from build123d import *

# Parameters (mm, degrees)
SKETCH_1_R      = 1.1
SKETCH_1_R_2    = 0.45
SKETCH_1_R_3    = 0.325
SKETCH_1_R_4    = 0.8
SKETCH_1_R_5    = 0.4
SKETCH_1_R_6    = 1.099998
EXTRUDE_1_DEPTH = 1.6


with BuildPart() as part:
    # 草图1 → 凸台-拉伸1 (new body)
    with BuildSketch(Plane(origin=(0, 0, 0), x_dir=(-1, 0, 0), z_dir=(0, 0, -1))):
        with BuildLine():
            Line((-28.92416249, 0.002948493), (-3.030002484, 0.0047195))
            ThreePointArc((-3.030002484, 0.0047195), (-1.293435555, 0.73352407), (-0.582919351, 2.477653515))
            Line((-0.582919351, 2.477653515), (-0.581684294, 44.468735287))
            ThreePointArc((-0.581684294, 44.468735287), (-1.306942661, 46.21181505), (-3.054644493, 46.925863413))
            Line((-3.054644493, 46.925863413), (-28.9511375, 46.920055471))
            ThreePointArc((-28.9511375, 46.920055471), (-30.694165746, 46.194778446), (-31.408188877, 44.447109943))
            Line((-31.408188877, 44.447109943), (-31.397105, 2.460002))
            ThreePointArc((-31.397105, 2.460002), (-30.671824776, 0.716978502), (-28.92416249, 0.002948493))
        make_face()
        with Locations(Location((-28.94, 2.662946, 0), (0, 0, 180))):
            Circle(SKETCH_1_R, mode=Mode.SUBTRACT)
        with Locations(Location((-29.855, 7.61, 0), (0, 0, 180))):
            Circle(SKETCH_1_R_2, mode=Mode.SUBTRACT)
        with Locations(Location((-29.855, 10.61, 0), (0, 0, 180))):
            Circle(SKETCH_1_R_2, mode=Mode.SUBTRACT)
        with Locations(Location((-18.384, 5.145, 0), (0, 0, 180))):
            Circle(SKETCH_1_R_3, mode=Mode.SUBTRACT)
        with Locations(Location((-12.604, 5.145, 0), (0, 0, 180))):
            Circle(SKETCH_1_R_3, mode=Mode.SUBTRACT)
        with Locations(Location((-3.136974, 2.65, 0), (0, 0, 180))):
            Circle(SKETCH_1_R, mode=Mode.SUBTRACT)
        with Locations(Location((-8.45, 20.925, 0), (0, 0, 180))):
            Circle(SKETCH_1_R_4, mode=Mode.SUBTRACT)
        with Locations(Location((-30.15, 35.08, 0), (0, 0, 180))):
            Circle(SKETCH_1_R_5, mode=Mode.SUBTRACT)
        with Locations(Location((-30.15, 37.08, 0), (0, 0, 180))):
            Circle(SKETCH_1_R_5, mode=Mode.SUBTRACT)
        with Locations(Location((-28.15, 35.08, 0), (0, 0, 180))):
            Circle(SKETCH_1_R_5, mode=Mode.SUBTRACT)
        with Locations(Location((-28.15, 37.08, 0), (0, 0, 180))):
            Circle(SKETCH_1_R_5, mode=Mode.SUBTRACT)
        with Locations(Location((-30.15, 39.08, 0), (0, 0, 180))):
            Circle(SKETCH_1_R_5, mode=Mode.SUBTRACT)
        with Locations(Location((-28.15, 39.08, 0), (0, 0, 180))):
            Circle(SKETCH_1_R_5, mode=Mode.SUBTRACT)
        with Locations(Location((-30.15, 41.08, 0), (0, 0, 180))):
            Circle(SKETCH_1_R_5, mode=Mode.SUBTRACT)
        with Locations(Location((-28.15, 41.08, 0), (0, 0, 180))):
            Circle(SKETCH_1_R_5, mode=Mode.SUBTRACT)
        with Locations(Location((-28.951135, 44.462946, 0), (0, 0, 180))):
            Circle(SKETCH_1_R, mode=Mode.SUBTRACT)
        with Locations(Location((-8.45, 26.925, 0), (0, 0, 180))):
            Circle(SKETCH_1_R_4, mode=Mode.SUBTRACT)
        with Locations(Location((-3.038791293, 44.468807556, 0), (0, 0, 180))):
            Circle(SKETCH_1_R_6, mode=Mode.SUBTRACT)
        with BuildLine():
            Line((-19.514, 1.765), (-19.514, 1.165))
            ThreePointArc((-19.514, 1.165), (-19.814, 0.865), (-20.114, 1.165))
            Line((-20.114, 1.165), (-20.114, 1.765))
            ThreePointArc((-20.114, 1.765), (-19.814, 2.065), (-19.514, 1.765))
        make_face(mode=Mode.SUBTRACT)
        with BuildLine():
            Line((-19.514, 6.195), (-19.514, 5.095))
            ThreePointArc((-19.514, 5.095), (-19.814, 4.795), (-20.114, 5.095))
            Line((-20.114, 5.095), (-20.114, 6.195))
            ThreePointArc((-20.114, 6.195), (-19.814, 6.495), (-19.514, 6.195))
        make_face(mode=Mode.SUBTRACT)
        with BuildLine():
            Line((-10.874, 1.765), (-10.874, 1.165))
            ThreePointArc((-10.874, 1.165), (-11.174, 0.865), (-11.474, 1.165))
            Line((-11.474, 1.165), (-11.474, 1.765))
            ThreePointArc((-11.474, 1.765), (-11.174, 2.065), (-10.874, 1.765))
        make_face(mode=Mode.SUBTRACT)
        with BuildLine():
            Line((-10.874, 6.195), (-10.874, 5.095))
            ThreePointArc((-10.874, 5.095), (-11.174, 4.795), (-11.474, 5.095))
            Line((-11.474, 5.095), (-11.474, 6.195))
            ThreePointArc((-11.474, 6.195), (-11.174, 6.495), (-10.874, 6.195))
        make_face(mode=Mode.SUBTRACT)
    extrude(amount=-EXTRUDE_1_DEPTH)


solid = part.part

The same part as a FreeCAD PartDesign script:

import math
import FreeCAD as App
import Part
import Sketcher

V = App.Vector
Q = App.Units.Quantity

doc = App.newDocument("Part")
body = doc.addObject("PartDesign::Body", "Body")

# Sketch on XY plane
sketch1 = doc.addObject("Sketcher::SketchObject", "Sketch")
body.addObject(sketch1)
sketch1.AttachmentSupport = (doc.XY_Plane, [""])
sketch1.MapMode = "FlatFace"
sketch1.addGeometry([
    Part.LineSegment(V(28.924162, 0.002948, 0), V(3.030002, 0.004719, 0)),  # 0
    Part.ArcOfCircle(Part.Circle(V(3.039982, 2.461813, 0), V(0, 0, 1), 2.457114), math.radians(179.630632), math.radians(269.767284)),  # 1
    Part.LineSegment(V(0.582919, 2.477654, 0), V(0.581684, 44.468735, 0)),  # 2
    Part.ArcOfCircle(Part.Circle(V(3.038791, 44.468808, 0), V(0, 0, 1), 2.457107), math.radians(89.630326), math.radians(180.001685)),  # 3
    Part.LineSegment(V(3.054644, 46.925863, 0), V(28.951138, 46.920055, 0)),  # 4
    Part.ArcOfCircle(Part.Circle(V(28.951144, 44.46296, 0), V(0, 0, 1), 2.457095), math.radians(-0.369601), math.radians(90.000163)),  # 5
    Part.LineSegment(V(31.408189, 44.44711, 0), V(31.397105, 2.460002, 0)),  # 6
    Part.ArcOfCircle(Part.Circle(V(28.939992, 2.46001, 0), V(0, 0, 1), 2.457113), math.radians(-90.369132), math.radians(-0.000187)),  # 7
    Part.Circle(V(28.94, 2.662946, 0), V(0, 0, 1), 1.1),  # 8
    Part.Circle(V(29.855, 7.61, 0), V(0, 0, 1), 0.45),  # 9
    Part.Circle(V(29.855, 10.61, 0), V(0, 0, 1), 0.45),  # 10
    Part.ArcOfCircle(Part.Circle(V(19.814, 1.765, 0), V(0, 0, 1), 0.3), math.radians(0), math.radians(180)),  # 11
    Part.LineSegment(V(19.514, 1.765, 0), V(19.514, 1.165, 0)),  # 12
    Part.ArcOfCircle(Part.Circle(V(19.814, 1.165, 0), V(0, 0, 1), 0.3), math.radians(180), math.radians(360)),  # 13
    Part.LineSegment(V(20.114, 1.165, 0), V(20.114, 1.765, 0)),  # 14
    Part.ArcOfCircle(Part.Circle(V(19.814, 6.195, 0), V(0, 0, 1), 0.3), math.radians(0), math.radians(180)),  # 15
    Part.LineSegment(V(19.514, 6.195, 0), V(19.514, 5.095, 0)),  # 16
    Part.ArcOfCircle(Part.Circle(V(19.814, 5.095, 0), V(0, 0, 1), 0.3), math.radians(180), math.radians(360)),  # 17
    Part.LineSegment(V(20.114, 5.095, 0), V(20.114, 6.195, 0)),  # 18
    Part.Circle(V(18.384, 5.145, 0), V(0, 0, 1), 0.325),  # 19
    Part.ArcOfCircle(Part.Circle(V(11.174, 1.765, 0), V(0, 0, 1), 0.3), math.radians(0), math.radians(180)),  # 20
    Part.LineSegment(V(10.874, 1.765, 0), V(10.874, 1.165, 0)),  # 21
    Part.ArcOfCircle(Part.Circle(V(11.174, 1.165, 0), V(0, 0, 1), 0.3), math.radians(180), math.radians(360)),  # 22
    Part.LineSegment(V(11.474, 1.165, 0), V(11.474, 1.765, 0)),  # 23
    Part.Circle(V(12.604, 5.145, 0), V(0, 0, 1), 0.325),  # 24
    Part.ArcOfCircle(Part.Circle(V(11.174, 6.195, 0), V(0, 0, 1), 0.3), math.radians(0), math.radians(180)),  # 25
    Part.LineSegment(V(10.874, 6.195, 0), V(10.874, 5.095, 0)),  # 26
    Part.ArcOfCircle(Part.Circle(V(11.174, 5.095, 0), V(0, 0, 1), 0.3), math.radians(180), math.radians(360)),  # 27
    Part.LineSegment(V(11.474, 5.095, 0), V(11.474, 6.195, 0)),  # 28
    Part.Circle(V(3.136974, 2.65, 0), V(0, 0, 1), 1.1),  # 29
    Part.Circle(V(8.45, 20.925, 0), V(0, 0, 1), 0.8),  # 30
    Part.Circle(V(30.15, 35.08, 0), V(0, 0, 1), 0.4),  # 31
    Part.Circle(V(30.15, 37.08, 0), V(0, 0, 1), 0.4),  # 32
    Part.Circle(V(28.15, 35.08, 0), V(0, 0, 1), 0.4),  # 33
    Part.Circle(V(28.15, 37.08, 0), V(0, 0, 1), 0.4),  # 34
    Part.Circle(V(30.15, 39.08, 0), V(0, 0, 1), 0.4),  # 35
    Part.Circle(V(28.15, 39.08, 0), V(0, 0, 1), 0.4),  # 36
    Part.Circle(V(30.15, 41.08, 0), V(0, 0, 1), 0.4),  # 37
    Part.Circle(V(28.15, 41.08, 0), V(0, 0, 1), 0.4),  # 38
    Part.Circle(V(28.951135, 44.462946, 0), V(0, 0, 1), 1.1),  # 39
    Part.Circle(V(8.45, 26.925, 0), V(0, 0, 1), 0.8),  # 40
    Part.Circle(V(3.038791, 44.468808, 0), V(0, 0, 1), 1.099998),  # 41
], False)
sketch1.addConstraint([
    Sketcher.Constraint("Coincident", 0, 2, 1, 2),
    Sketcher.Constraint("Coincident", 1, 1, 2, 1),
    Sketcher.Constraint("Coincident", 2, 2, 3, 2),
    Sketcher.Constraint("Coincident", 3, 1, 4, 1),
    Sketcher.Constraint("Coincident", 4, 2, 5, 2),
    Sketcher.Constraint("Coincident", 5, 1, 6, 1),
    Sketcher.Constraint("Coincident", 6, 2, 7, 2),
    Sketcher.Constraint("Coincident", 7, 1, 0, 1),
    Sketcher.Constraint("Coincident", 11, 2, 12, 1),
    Sketcher.Constraint("Coincident", 12, 2, 13, 1),
    Sketcher.Constraint("Coincident", 13, 2, 14, 1),
    Sketcher.Constraint("Coincident", 14, 2, 11, 1),
    Sketcher.Constraint("Coincident", 15, 2, 16, 1),
    Sketcher.Constraint("Coincident", 16, 2, 17, 1),
    Sketcher.Constraint("Coincident", 17, 2, 18, 1),
    Sketcher.Constraint("Coincident", 18, 2, 15, 1),
    Sketcher.Constraint("Coincident", 20, 2, 21, 1),
    Sketcher.Constraint("Coincident", 21, 2, 22, 1),
    Sketcher.Constraint("Coincident", 22, 2, 23, 1),
    Sketcher.Constraint("Coincident", 23, 2, 20, 1),
    Sketcher.Constraint("Coincident", 25, 2, 26, 1),
    Sketcher.Constraint("Coincident", 26, 2, 27, 1),
    Sketcher.Constraint("Coincident", 27, 2, 28, 1),
    Sketcher.Constraint("Coincident", 28, 2, 25, 1),
    Sketcher.Constraint("Vertical", 12),
    Sketcher.Constraint("Vertical", 14),
    Sketcher.Constraint("Vertical", 16),
    Sketcher.Constraint("Vertical", 18),
    Sketcher.Constraint("Vertical", 21),
    Sketcher.Constraint("Vertical", 23),
    Sketcher.Constraint("Vertical", 26),
    Sketcher.Constraint("Vertical", 28),
    Sketcher.Constraint("Coincident", 41, 3, 3, 3),
    Sketcher.Constraint("Diameter", 8, Q("2.2 mm")),
    Sketcher.Constraint("Diameter", 9, Q("0.9 mm")),
    Sketcher.Constraint("Diameter", 10, Q("0.9 mm")),
    Sketcher.Constraint("Diameter", 29, Q("2.2 mm")),
    Sketcher.Constraint("Diameter", 30, Q("1.6 mm")),
    Sketcher.Constraint("Diameter", 31, Q("0.8 mm")),
    Sketcher.Constraint("Diameter", 32, Q("0.8 mm")),
    Sketcher.Constraint("Diameter", 33, Q("0.8 mm")),
    Sketcher.Constraint("Diameter", 34, Q("0.8 mm")),
    Sketcher.Constraint("Diameter", 35, Q("0.8 mm")),
    Sketcher.Constraint("Diameter", 36, Q("0.8 mm")),
    Sketcher.Constraint("Diameter", 37, Q("0.8 mm")),
    Sketcher.Constraint("Diameter", 38, Q("0.8 mm")),
    Sketcher.Constraint("Diameter", 39, Q("2.2 mm")),
    Sketcher.Constraint("Diameter", 40, Q("1.6 mm")),
    Sketcher.Constraint("Radius", 11, Q("0.3 mm")),
    Sketcher.Constraint("Radius", 15, Q("0.3 mm")),
    Sketcher.Constraint("Radius", 20, Q("0.3 mm")),
    Sketcher.Constraint("Radius", 25, Q("0.3 mm")),
    Sketcher.Constraint("Diameter", 19, Q("0.65 mm")),
    Sketcher.Constraint("Diameter", 24, Q("0.65 mm")),
    Sketcher.Constraint("DistanceY", 12, 2, 12, 1, Q("0.6 mm")),
    Sketcher.Constraint("DistanceY", 14, 1, 14, 2, Q("0.6 mm")),
    Sketcher.Constraint("DistanceY", 16, 2, 16, 1, Q("1.1 mm")),
    Sketcher.Constraint("DistanceY", 18, 1, 18, 2, Q("1.1 mm")),
    Sketcher.Constraint("DistanceY", 21, 2, 21, 1, Q("0.6 mm")),
    Sketcher.Constraint("DistanceY", 23, 1, 23, 2, Q("0.6 mm")),
    Sketcher.Constraint("DistanceY", 26, 2, 26, 1, Q("1.1 mm")),
    Sketcher.Constraint("DistanceY", 28, 1, 28, 2, Q("1.1 mm")),
    Sketcher.Constraint("DistanceY", 9, 3, 10, 3, Q("3 mm")),
    Sketcher.Constraint("DistanceY", 31, 3, 32, 3, Q("2 mm")),
    Sketcher.Constraint("DistanceX", 33, 3, 31, 3, Q("2 mm")),
    Sketcher.Constraint("DistanceX", 33, 3, 32, 3, Q("2 mm")),
    Sketcher.Constraint("DistanceY", 33, 3, 32, 3, Q("2 mm")),
    Sketcher.Constraint("DistanceX", 34, 3, 32, 3, Q("2 mm")),
    Sketcher.Constraint("DistanceY", 33, 3, 34, 3, Q("2 mm")),
    Sketcher.Constraint("DistanceY", 32, 3, 35, 3, Q("2 mm")),
    Sketcher.Constraint("DistanceX", 34, 3, 35, 3, Q("2 mm")),
    Sketcher.Constraint("DistanceY", 34, 3, 36, 3, Q("2 mm")),
    Sketcher.Constraint("DistanceX", 36, 3, 35, 3, Q("2 mm")),
    Sketcher.Constraint("DistanceY", 35, 3, 37, 3, Q("2 mm")),
    Sketcher.Constraint("DistanceX", 36, 3, 37, 3, Q("2 mm")),
    Sketcher.Constraint("DistanceY", 36, 3, 38, 3, Q("2 mm")),
    Sketcher.Constraint("DistanceX", 38, 3, 37, 3, Q("2 mm")),
    Sketcher.Constraint("DistanceY", 30, 3, 40, 3, Q("6 mm")),
    Sketcher.Constraint("DistanceY", 13, 3, 11, 3, Q("0.6 mm")),
    Sketcher.Constraint("DistanceY", 17, 3, 15, 3, Q("1.1 mm")),
    Sketcher.Constraint("DistanceY", 13, 3, 20, 3, Q("0.6 mm")),
    Sketcher.Constraint("DistanceY", 22, 3, 20, 3, Q("0.6 mm")),
    Sketcher.Constraint("DistanceY", 27, 3, 25, 3, Q("1.1 mm")),
    Sketcher.Constraint("DistanceX", 30, 3, 31, 3, Q("21.7 mm")),
    Sketcher.Constraint("DistanceX", 40, 3, 33, 3, Q("19.7 mm")),
    Sketcher.Constraint("DistanceY", 13, 3, 11, 2, Q("0.6 mm")),
    Sketcher.Constraint("DistanceX", 11, 2, 17, 3, Q("0.3 mm")),
    Sketcher.Constraint("DistanceY", 13, 2, 11, 3, Q("0.6 mm")),
    Sketcher.Constraint("DistanceY", 17, 3, 15, 2, Q("1.1 mm")),
    Sketcher.Constraint("DistanceY", 17, 2, 15, 3, Q("1.1 mm")),
    Sketcher.Constraint("DistanceY", 22, 3, 20, 2, Q("0.6 mm")),
    Sketcher.Constraint("DistanceX", 20, 2, 27, 3, Q("0.3 mm")),
    Sketcher.Constraint("DistanceY", 22, 2, 20, 3, Q("0.6 mm")),
    Sketcher.Constraint("DistanceY", 27, 3, 25, 2, Q("1.1 mm")),
    Sketcher.Constraint("DistanceY", 27, 2, 25, 3, Q("1.1 mm")),
    Sketcher.Constraint("DistanceX", -1, 1, 8, 3, Q("28.94 mm")),
    Sketcher.Constraint("DistanceY", -1, 1, 9, 3, Q("7.61 mm")),
    Sketcher.Constraint("DistanceY", -1, 1, 29, 3, Q("2.65 mm")),
    Sketcher.Constraint("DistanceX", -1, 1, 30, 3, Q("8.45 mm")),
    Sketcher.Constraint("DistanceY", -1, 1, 31, 3, Q("35.08 mm")),
    Sketcher.Constraint("DistanceY", -1, 1, 6, 2, Q("2.460002 mm")),
    Sketcher.Constraint("DistanceY", 11, 3, 15, 3, Q("4.43 mm")),
    Sketcher.Constraint("DistanceX", 19, 3, 17, 3, Q("1.43 mm")),
    Sketcher.Constraint("DistanceY", 17, 3, 19, 3, Q("0.05 mm")),
    Sketcher.Constraint("DistanceX", 20, 3, 19, 3, Q("7.21 mm")),
    Sketcher.Constraint("DistanceX", 20, 3, 24, 3, Q("1.43 mm")),
    Sketcher.Constraint("DistanceY", 20, 3, 24, 3, Q("3.38 mm")),
    Sketcher.Constraint("DistanceY", 24, 3, 25, 3, Q("1.05 mm")),
    Sketcher.Constraint("DistanceY", 25, 3, 30, 3, Q("14.73 mm")),
    Sketcher.Constraint("Diameter", 41, Q("2.199996 mm")),
    Sketcher.Constraint("DistanceX", -1, 1, 9, 3, Q("29.855 mm")),
    Sketcher.Constraint("DistanceX", -1, 1, 10, 3, Q("29.855 mm")),
    Sketcher.Constraint("DistanceX", -1, 1, 11, 3, Q("19.814 mm")),
    Sketcher.Constraint("DistanceY", -1, 1, 11, 3, Q("1.765 mm")),
    Sketcher.Constraint("Radius", 1, Q("2.457114 mm")),
    Sketcher.Constraint("Radius", 3, Q("2.457107 mm")),
    Sketcher.Constraint("Radius", 5, Q("2.457095 mm")),
    Sketcher.Constraint("Radius", 7, Q("2.457113 mm")),
    Sketcher.Constraint("DistanceX", 3, 3, 7, 3, Q("25.901201 mm")),
    Sketcher.Constraint("Distance", 0, Q("25.89416 mm")),
    Sketcher.Constraint("Distance", 2, Q("41.991082 mm")),
    Sketcher.Constraint("Distance", 6, Q("41.987109 mm")),
    Sketcher.Constraint("DistanceX", -1, 1, 3, 3, Q("3.038791 mm")),
    Sketcher.Constraint("DistanceY", -1, 1, 5, 3, Q("44.46296 mm")),
    Sketcher.Constraint("DistanceY", -1, 1, 7, 3, Q("2.46001 mm")),
    Sketcher.Constraint("DistanceY", -1, 1, 0, 2, Q("0.004719 mm")),
    Sketcher.Constraint("DistanceX", -1, 1, 1, 1, Q("0.582919 mm")),
    Sketcher.Constraint("DistanceX", -1, 1, 5, 1, Q("31.408189 mm")),
    Sketcher.Constraint("DistanceY", -1, 1, 7, 1, Q("0.002948 mm")),
    Sketcher.Constraint("DistanceX", 3, 3, 1, 3, Q("0.001191 mm")),
    Sketcher.Constraint("DistanceY", 8, 3, 3, 3, Q("41.805862 mm")),
    Sketcher.Constraint("DistanceX", 1, 3, 29, 3, Q("0.096992 mm")),
    Sketcher.Constraint("DistanceX", 2, 2, 3, 1, Q("2.47296 mm")),
    Sketcher.Constraint("DistanceY", 2, 2, 3, 1, Q("2.457128 mm")),
    Sketcher.Constraint("DistanceY", 39, 3, 4, 2, Q("2.457109 mm")),
    Sketcher.Constraint("DistanceX", 4, 2, 5, 1, Q("2.457051 mm")),
    Sketcher.Constraint("DistanceX", -1, 1, 39, 3, Q("28.951135 mm")),
])
pad1 = doc.addObject("PartDesign::Pad", "Pad")
body.addObject(pad1)
pad1.Profile = sketch1
pad1.Length = 1.6

doc.recompute()
